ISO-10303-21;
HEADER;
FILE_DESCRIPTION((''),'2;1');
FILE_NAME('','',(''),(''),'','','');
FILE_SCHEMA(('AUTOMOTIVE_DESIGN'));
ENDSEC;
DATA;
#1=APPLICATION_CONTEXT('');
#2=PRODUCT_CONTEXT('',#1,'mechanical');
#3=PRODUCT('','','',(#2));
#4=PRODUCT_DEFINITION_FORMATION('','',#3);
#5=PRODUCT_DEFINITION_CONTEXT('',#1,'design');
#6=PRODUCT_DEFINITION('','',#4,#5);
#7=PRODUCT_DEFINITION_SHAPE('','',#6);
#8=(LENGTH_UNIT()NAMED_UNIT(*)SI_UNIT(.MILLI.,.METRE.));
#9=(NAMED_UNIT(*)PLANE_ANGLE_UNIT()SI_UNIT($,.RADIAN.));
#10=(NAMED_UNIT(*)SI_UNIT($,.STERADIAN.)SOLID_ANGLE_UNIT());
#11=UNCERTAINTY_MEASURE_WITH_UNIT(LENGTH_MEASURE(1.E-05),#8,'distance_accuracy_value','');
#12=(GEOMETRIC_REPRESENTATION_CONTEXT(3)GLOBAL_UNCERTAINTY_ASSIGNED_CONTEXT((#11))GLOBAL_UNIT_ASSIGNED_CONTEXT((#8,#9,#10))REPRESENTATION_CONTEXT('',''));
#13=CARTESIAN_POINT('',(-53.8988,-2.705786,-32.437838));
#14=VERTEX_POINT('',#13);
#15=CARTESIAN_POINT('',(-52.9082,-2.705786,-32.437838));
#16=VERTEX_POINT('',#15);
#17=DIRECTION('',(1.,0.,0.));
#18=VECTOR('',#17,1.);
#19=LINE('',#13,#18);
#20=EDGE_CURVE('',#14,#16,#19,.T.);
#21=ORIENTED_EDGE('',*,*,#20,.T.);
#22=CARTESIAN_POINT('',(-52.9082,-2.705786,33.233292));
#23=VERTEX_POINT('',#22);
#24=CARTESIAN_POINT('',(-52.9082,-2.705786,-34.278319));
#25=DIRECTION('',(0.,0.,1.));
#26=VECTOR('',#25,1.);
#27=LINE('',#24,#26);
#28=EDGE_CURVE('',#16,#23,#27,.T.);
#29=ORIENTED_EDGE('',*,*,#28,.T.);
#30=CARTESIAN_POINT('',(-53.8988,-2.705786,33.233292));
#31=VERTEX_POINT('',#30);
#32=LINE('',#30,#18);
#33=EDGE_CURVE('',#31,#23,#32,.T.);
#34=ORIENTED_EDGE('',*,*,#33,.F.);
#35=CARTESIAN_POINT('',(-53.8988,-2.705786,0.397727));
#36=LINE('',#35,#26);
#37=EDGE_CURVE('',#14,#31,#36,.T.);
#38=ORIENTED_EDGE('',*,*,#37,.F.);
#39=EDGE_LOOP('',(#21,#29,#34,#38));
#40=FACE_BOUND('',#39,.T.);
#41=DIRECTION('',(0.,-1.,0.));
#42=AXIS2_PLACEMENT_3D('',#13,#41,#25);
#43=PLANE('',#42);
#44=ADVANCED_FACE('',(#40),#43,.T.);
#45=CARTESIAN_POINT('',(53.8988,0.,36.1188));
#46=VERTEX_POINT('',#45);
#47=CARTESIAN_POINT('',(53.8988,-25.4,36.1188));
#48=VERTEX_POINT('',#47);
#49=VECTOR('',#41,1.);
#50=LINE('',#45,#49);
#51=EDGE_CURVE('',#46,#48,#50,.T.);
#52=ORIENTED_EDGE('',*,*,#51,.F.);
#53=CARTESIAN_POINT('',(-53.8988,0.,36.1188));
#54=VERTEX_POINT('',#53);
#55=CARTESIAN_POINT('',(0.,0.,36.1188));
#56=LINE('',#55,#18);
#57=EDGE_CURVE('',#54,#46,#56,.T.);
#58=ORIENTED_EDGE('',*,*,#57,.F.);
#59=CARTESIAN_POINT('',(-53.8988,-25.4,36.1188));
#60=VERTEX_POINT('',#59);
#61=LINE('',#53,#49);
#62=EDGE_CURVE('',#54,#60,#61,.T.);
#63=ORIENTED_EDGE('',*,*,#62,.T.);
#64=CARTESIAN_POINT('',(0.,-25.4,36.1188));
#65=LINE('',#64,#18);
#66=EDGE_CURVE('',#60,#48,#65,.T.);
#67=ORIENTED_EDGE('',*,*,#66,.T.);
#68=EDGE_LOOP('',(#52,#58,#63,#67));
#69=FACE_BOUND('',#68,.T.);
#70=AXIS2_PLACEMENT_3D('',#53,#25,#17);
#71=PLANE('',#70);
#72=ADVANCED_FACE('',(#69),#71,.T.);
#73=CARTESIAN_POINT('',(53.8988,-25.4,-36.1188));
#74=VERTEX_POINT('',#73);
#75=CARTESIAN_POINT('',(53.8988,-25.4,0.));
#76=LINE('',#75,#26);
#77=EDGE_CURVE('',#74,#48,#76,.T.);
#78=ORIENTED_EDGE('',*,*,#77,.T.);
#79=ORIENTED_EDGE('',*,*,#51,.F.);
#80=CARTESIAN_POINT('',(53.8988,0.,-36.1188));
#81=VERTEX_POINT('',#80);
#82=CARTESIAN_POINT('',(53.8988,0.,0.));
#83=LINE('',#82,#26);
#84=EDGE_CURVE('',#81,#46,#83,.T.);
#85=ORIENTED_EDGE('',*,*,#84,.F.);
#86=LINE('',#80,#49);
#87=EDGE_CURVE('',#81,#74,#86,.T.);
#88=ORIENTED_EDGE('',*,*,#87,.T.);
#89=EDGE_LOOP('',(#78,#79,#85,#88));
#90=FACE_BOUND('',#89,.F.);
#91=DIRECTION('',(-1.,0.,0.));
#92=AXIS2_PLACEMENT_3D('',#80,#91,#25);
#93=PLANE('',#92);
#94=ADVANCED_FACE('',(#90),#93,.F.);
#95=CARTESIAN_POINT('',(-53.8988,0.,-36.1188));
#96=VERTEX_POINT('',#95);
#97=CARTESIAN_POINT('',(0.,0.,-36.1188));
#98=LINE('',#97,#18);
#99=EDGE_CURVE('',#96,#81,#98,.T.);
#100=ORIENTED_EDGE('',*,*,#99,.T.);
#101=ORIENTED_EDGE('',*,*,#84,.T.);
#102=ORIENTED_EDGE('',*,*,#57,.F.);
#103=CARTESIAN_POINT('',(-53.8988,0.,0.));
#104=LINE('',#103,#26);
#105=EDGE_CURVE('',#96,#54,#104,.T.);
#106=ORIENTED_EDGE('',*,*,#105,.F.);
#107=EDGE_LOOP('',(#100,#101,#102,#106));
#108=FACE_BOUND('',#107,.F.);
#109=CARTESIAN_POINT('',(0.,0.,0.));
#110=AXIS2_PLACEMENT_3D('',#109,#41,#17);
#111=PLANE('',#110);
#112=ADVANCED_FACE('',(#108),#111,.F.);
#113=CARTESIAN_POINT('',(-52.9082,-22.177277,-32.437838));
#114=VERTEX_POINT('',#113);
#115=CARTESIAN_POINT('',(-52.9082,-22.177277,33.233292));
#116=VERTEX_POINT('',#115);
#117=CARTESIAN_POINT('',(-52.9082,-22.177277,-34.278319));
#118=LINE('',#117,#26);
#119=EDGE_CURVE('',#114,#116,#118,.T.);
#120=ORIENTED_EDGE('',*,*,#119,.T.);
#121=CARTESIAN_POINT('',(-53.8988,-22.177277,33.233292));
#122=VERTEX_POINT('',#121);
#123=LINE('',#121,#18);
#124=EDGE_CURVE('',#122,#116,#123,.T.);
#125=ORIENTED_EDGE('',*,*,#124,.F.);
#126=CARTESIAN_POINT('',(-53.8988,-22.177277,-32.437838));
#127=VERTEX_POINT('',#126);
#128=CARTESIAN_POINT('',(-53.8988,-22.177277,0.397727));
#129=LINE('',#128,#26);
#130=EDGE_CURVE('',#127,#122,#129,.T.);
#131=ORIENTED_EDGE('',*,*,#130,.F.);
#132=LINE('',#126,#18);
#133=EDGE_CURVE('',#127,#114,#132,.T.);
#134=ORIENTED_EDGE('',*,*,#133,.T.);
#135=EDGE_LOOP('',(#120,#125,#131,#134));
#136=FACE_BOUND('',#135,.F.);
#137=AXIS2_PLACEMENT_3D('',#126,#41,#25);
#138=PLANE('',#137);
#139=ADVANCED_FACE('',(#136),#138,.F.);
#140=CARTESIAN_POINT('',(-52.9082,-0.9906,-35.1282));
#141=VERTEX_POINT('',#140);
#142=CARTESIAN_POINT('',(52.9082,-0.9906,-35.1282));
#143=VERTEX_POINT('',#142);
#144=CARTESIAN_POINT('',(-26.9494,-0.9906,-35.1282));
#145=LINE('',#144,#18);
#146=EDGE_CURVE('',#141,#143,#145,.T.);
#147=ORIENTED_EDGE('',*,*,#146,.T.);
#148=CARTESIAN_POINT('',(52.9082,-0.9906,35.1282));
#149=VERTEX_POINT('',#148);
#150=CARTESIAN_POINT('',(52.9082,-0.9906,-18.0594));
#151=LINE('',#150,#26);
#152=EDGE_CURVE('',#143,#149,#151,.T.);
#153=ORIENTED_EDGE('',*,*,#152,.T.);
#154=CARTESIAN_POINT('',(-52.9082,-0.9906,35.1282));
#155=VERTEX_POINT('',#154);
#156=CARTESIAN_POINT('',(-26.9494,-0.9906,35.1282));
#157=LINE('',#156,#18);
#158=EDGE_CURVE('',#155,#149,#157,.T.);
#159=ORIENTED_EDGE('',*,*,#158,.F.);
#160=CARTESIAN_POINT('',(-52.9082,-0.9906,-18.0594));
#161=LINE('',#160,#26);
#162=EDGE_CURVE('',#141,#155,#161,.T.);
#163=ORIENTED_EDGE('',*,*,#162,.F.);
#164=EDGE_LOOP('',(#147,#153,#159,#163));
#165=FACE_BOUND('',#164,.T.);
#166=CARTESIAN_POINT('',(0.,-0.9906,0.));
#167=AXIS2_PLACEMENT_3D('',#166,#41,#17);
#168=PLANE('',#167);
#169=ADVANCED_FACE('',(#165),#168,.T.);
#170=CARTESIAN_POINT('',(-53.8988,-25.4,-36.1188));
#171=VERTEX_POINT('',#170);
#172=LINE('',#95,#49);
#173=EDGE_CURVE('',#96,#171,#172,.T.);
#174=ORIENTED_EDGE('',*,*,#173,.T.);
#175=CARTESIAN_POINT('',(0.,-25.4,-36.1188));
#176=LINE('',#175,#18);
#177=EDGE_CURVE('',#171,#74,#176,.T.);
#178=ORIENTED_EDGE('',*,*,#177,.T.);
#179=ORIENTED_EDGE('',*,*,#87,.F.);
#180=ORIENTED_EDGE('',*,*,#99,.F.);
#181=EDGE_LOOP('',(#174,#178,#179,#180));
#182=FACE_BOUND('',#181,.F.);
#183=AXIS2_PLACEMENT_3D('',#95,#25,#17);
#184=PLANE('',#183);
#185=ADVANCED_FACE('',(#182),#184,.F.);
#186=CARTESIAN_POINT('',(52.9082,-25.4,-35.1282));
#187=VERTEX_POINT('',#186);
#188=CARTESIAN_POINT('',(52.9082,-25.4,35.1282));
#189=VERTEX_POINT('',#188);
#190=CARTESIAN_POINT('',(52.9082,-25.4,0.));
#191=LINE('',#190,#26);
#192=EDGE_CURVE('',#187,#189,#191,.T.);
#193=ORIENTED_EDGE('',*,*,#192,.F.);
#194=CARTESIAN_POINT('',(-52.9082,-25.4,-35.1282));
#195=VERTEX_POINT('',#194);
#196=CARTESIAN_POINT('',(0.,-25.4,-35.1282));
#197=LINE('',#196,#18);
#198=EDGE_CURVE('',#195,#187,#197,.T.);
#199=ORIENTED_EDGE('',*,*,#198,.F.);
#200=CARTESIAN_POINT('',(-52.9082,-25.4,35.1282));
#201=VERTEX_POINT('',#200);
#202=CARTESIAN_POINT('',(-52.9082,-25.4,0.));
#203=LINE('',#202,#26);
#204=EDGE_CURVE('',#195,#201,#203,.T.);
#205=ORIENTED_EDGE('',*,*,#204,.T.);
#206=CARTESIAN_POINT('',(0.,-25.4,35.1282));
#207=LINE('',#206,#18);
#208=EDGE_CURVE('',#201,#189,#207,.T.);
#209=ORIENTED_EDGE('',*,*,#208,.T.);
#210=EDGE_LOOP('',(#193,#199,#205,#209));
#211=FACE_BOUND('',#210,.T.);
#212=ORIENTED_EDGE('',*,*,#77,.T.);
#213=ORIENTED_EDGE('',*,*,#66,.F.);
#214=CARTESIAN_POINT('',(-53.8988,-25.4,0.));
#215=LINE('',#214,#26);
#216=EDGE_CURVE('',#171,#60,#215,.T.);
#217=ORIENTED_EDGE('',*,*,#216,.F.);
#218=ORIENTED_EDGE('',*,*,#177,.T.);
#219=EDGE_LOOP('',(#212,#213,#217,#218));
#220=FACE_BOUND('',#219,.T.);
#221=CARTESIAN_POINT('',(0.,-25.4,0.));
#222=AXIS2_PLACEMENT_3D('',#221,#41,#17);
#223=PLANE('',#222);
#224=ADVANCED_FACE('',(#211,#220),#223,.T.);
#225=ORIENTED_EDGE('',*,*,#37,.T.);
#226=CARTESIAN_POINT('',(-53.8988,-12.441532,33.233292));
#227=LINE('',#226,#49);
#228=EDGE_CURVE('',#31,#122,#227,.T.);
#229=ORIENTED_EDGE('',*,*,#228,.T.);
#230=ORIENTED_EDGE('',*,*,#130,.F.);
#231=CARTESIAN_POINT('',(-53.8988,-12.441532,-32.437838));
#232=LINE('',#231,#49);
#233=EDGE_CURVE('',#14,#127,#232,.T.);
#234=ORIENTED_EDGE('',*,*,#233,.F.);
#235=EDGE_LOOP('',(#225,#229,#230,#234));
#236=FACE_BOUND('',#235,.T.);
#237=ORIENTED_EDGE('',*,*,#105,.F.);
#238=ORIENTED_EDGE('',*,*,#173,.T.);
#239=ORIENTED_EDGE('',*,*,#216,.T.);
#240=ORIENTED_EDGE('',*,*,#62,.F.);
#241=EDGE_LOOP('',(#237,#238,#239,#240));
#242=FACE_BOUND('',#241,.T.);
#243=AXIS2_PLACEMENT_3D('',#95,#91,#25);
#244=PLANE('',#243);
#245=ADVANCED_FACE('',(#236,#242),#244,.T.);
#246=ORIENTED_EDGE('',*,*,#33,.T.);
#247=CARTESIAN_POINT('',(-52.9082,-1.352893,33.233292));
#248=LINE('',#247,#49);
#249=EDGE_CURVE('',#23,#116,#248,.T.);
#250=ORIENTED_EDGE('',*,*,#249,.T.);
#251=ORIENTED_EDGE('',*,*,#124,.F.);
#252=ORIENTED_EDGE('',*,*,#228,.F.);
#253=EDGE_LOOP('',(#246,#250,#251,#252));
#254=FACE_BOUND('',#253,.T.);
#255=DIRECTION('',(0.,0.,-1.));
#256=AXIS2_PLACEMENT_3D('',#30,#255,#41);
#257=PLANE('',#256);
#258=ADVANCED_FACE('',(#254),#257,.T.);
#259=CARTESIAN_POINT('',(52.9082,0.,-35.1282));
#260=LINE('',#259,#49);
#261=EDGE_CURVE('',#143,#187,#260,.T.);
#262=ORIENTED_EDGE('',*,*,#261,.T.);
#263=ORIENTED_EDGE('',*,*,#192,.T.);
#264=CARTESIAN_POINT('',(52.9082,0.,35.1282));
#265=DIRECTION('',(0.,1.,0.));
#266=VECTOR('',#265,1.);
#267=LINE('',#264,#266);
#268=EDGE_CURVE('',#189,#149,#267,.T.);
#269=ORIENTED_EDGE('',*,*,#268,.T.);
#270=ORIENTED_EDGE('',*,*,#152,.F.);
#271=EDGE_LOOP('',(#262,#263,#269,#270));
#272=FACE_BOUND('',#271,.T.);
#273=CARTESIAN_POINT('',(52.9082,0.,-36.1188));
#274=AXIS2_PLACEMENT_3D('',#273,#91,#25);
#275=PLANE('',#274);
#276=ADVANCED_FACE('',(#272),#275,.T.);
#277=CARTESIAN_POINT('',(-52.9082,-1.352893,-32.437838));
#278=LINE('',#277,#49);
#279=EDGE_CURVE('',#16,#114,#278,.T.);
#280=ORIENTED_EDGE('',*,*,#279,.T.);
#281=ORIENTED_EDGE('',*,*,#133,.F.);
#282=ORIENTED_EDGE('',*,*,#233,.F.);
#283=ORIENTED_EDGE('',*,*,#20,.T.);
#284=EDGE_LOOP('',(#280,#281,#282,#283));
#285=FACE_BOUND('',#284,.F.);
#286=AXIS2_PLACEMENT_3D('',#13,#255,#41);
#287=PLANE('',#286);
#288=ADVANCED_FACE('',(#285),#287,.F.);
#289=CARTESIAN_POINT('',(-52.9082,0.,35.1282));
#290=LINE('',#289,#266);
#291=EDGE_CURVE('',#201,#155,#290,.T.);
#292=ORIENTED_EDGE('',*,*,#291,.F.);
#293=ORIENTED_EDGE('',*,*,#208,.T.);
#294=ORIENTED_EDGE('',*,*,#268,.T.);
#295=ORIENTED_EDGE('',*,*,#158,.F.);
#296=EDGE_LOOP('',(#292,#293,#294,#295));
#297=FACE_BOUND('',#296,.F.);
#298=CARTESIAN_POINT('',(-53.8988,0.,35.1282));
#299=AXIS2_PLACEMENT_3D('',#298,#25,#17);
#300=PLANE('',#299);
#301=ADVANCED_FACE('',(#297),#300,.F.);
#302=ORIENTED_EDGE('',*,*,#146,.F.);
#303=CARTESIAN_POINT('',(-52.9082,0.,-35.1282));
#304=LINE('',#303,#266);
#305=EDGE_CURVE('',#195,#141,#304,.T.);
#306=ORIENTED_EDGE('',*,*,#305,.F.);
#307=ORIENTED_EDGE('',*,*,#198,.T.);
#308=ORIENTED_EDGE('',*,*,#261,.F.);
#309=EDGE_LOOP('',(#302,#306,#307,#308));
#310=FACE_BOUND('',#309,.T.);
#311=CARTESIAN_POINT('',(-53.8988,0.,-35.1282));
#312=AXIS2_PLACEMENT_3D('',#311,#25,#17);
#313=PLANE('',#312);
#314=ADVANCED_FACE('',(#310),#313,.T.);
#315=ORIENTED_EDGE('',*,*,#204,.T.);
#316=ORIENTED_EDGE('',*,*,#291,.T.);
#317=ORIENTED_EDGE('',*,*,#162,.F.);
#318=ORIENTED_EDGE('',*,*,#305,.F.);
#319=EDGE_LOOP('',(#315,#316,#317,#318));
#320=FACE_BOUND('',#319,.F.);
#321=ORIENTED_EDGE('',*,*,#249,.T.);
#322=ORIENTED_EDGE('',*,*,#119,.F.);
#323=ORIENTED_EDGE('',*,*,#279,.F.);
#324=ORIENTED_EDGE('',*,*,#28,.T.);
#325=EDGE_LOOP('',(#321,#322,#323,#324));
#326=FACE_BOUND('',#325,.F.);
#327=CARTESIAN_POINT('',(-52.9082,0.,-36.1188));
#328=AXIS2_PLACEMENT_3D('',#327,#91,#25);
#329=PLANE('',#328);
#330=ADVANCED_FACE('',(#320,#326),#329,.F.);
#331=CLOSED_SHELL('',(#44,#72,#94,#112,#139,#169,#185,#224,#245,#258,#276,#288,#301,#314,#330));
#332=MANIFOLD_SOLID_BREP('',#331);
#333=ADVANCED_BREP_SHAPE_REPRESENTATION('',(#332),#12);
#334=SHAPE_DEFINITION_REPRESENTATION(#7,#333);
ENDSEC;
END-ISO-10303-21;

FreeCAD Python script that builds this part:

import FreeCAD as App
import Part
import Sketcher
from FreeCAD import Vector
Q = App.Units.Quantity


def faces_at(feature, points):
    """Names of the faces that lie closest to the given points."""
    faces = feature.Shape.Faces
    near = lambda p: min(range(len(faces)), key=lambda i: faces[i].distToShape(Part.Vertex(*p))[0])
    return sorted({f"Face{near(p) + 1}" for p in points})

doc = App.newDocument("Part")
body = doc.addObject("PartDesign::Body", "Body")

# Sketch on XZ plane
sketch1 = body.newObject("Sketcher::SketchObject", "Sketch")
sketch1.AttachmentSupport = (doc.getObject("XZ_Plane"), [""])
sketch1.MapMode = "FlatFace"
sketch1.addGeometry([
    Part.LineSegment(Vector(-53.8988, 36.1188, 0), Vector(-53.8988, -36.1188, 0)),
    Part.LineSegment(Vector(-53.8988, -36.1188, 0), Vector(53.8988, -36.1188, 0)),
    Part.LineSegment(Vector(53.8988, -36.1188, 0), Vector(53.8988, 36.1188, 0)),
    Part.LineSegment(Vector(53.8988, 36.1188, 0), Vector(-53.8988, 36.1188, 0)),
], False)
sketch1.addConstraint([
    Sketcher.Constraint("Coincident", 0, 2, 1, 1),
    Sketcher.Constraint("Coincident", 1, 2, 2, 1),
    Sketcher.Constraint("Coincident", 2, 2, 3, 1),
    Sketcher.Constraint("Coincident", 3, 2, 0, 1),
    Sketcher.Constraint("Vertical", 0),
    Sketcher.Constraint("Horizontal", 1),
    Sketcher.Constraint("Vertical", 2),
    Sketcher.Constraint("Horizontal", 3),
    Sketcher.Constraint("Symmetric", 0, 2, 2, 2, -1, 1),
    Sketcher.Constraint("DistanceX", 1, 1, 1, 2, Q("4.244 in")),
    Sketcher.Constraint("DistanceY", 0, 2, 0, 1, Q("2.844 in")),
])
pad1 = body.newObject("PartDesign::Pad", "Pad")
pad1.Profile = sketch1
pad1.Length = Q("1 in")
doc.recompute()

thickness = body.newObject("PartDesign::Thickness", "Thickness")
thickness.Base = (pad1, faces_at(pad1, [(0, -25.4, 0)]))
thickness.Value = Q("0.039 in")
thickness.Reversed = True
thickness.Join = "Arc"

# Sketch on YZ plane
sketch2 = body.newObject("Sketcher::SketchObject", "Sketch001")
sketch2.AttachmentSupport = (doc.getObject("YZ_Plane"), [""])
sketch2.MapMode = "FlatFace"
sketch2.AttachmentOffset = App.Placement(Vector(0, 0, -2.122 * 25.4), App.Rotation())
sketch2.addGeometry([
    Part.LineSegment(Vector(-2.705786, 33.233292, 0), Vector(-2.705786, -32.437838, 0)),
    Part.LineSegment(Vector(-2.705786, -32.437838, 0), Vector(-22.177277, -32.437838, 0)),
    Part.LineSegment(Vector(-22.177277, -32.437838, 0), Vector(-22.177277, 33.233292, 0)),
    Part.LineSegment(Vector(-22.177277, 33.233292, 0), Vector(-2.705786, 33.233292, 0)),
], False)
sketch2.addConstraint([
    Sketcher.Constraint("Coincident", 0, 2, 1, 1),
    Sketcher.Constraint("Coincident", 1, 2, 2, 1),
    Sketcher.Constraint("Coincident", 2, 2, 3, 1),
    Sketcher.Constraint("Coincident", 3, 2, 0, 1),
    Sketcher.Constraint("Vertical", 0),
    Sketcher.Constraint("Horizontal", 1),
    Sketcher.Constraint("Vertical", 2),
    Sketcher.Constraint("Horizontal", 3),
    Sketcher.Constraint("DistanceX", 1, 2, 1, 1, 19.471491),
    Sketcher.Constraint("DistanceY", 0, 2, 0, 1, 65.671131),
    Sketcher.Constraint("DistanceY", 0, 2, -1, 1, 32.437838),
    Sketcher.Constraint("DistanceX", 0, 2, -1, 1, 2.705786),
])
pocket1 = body.newObject("PartDesign::Pocket", "Pocket")
pocket1.Profile = sketch2
pocket1.Length = Q("1 in")
pocket1.Reversed = True

doc.recompute()
